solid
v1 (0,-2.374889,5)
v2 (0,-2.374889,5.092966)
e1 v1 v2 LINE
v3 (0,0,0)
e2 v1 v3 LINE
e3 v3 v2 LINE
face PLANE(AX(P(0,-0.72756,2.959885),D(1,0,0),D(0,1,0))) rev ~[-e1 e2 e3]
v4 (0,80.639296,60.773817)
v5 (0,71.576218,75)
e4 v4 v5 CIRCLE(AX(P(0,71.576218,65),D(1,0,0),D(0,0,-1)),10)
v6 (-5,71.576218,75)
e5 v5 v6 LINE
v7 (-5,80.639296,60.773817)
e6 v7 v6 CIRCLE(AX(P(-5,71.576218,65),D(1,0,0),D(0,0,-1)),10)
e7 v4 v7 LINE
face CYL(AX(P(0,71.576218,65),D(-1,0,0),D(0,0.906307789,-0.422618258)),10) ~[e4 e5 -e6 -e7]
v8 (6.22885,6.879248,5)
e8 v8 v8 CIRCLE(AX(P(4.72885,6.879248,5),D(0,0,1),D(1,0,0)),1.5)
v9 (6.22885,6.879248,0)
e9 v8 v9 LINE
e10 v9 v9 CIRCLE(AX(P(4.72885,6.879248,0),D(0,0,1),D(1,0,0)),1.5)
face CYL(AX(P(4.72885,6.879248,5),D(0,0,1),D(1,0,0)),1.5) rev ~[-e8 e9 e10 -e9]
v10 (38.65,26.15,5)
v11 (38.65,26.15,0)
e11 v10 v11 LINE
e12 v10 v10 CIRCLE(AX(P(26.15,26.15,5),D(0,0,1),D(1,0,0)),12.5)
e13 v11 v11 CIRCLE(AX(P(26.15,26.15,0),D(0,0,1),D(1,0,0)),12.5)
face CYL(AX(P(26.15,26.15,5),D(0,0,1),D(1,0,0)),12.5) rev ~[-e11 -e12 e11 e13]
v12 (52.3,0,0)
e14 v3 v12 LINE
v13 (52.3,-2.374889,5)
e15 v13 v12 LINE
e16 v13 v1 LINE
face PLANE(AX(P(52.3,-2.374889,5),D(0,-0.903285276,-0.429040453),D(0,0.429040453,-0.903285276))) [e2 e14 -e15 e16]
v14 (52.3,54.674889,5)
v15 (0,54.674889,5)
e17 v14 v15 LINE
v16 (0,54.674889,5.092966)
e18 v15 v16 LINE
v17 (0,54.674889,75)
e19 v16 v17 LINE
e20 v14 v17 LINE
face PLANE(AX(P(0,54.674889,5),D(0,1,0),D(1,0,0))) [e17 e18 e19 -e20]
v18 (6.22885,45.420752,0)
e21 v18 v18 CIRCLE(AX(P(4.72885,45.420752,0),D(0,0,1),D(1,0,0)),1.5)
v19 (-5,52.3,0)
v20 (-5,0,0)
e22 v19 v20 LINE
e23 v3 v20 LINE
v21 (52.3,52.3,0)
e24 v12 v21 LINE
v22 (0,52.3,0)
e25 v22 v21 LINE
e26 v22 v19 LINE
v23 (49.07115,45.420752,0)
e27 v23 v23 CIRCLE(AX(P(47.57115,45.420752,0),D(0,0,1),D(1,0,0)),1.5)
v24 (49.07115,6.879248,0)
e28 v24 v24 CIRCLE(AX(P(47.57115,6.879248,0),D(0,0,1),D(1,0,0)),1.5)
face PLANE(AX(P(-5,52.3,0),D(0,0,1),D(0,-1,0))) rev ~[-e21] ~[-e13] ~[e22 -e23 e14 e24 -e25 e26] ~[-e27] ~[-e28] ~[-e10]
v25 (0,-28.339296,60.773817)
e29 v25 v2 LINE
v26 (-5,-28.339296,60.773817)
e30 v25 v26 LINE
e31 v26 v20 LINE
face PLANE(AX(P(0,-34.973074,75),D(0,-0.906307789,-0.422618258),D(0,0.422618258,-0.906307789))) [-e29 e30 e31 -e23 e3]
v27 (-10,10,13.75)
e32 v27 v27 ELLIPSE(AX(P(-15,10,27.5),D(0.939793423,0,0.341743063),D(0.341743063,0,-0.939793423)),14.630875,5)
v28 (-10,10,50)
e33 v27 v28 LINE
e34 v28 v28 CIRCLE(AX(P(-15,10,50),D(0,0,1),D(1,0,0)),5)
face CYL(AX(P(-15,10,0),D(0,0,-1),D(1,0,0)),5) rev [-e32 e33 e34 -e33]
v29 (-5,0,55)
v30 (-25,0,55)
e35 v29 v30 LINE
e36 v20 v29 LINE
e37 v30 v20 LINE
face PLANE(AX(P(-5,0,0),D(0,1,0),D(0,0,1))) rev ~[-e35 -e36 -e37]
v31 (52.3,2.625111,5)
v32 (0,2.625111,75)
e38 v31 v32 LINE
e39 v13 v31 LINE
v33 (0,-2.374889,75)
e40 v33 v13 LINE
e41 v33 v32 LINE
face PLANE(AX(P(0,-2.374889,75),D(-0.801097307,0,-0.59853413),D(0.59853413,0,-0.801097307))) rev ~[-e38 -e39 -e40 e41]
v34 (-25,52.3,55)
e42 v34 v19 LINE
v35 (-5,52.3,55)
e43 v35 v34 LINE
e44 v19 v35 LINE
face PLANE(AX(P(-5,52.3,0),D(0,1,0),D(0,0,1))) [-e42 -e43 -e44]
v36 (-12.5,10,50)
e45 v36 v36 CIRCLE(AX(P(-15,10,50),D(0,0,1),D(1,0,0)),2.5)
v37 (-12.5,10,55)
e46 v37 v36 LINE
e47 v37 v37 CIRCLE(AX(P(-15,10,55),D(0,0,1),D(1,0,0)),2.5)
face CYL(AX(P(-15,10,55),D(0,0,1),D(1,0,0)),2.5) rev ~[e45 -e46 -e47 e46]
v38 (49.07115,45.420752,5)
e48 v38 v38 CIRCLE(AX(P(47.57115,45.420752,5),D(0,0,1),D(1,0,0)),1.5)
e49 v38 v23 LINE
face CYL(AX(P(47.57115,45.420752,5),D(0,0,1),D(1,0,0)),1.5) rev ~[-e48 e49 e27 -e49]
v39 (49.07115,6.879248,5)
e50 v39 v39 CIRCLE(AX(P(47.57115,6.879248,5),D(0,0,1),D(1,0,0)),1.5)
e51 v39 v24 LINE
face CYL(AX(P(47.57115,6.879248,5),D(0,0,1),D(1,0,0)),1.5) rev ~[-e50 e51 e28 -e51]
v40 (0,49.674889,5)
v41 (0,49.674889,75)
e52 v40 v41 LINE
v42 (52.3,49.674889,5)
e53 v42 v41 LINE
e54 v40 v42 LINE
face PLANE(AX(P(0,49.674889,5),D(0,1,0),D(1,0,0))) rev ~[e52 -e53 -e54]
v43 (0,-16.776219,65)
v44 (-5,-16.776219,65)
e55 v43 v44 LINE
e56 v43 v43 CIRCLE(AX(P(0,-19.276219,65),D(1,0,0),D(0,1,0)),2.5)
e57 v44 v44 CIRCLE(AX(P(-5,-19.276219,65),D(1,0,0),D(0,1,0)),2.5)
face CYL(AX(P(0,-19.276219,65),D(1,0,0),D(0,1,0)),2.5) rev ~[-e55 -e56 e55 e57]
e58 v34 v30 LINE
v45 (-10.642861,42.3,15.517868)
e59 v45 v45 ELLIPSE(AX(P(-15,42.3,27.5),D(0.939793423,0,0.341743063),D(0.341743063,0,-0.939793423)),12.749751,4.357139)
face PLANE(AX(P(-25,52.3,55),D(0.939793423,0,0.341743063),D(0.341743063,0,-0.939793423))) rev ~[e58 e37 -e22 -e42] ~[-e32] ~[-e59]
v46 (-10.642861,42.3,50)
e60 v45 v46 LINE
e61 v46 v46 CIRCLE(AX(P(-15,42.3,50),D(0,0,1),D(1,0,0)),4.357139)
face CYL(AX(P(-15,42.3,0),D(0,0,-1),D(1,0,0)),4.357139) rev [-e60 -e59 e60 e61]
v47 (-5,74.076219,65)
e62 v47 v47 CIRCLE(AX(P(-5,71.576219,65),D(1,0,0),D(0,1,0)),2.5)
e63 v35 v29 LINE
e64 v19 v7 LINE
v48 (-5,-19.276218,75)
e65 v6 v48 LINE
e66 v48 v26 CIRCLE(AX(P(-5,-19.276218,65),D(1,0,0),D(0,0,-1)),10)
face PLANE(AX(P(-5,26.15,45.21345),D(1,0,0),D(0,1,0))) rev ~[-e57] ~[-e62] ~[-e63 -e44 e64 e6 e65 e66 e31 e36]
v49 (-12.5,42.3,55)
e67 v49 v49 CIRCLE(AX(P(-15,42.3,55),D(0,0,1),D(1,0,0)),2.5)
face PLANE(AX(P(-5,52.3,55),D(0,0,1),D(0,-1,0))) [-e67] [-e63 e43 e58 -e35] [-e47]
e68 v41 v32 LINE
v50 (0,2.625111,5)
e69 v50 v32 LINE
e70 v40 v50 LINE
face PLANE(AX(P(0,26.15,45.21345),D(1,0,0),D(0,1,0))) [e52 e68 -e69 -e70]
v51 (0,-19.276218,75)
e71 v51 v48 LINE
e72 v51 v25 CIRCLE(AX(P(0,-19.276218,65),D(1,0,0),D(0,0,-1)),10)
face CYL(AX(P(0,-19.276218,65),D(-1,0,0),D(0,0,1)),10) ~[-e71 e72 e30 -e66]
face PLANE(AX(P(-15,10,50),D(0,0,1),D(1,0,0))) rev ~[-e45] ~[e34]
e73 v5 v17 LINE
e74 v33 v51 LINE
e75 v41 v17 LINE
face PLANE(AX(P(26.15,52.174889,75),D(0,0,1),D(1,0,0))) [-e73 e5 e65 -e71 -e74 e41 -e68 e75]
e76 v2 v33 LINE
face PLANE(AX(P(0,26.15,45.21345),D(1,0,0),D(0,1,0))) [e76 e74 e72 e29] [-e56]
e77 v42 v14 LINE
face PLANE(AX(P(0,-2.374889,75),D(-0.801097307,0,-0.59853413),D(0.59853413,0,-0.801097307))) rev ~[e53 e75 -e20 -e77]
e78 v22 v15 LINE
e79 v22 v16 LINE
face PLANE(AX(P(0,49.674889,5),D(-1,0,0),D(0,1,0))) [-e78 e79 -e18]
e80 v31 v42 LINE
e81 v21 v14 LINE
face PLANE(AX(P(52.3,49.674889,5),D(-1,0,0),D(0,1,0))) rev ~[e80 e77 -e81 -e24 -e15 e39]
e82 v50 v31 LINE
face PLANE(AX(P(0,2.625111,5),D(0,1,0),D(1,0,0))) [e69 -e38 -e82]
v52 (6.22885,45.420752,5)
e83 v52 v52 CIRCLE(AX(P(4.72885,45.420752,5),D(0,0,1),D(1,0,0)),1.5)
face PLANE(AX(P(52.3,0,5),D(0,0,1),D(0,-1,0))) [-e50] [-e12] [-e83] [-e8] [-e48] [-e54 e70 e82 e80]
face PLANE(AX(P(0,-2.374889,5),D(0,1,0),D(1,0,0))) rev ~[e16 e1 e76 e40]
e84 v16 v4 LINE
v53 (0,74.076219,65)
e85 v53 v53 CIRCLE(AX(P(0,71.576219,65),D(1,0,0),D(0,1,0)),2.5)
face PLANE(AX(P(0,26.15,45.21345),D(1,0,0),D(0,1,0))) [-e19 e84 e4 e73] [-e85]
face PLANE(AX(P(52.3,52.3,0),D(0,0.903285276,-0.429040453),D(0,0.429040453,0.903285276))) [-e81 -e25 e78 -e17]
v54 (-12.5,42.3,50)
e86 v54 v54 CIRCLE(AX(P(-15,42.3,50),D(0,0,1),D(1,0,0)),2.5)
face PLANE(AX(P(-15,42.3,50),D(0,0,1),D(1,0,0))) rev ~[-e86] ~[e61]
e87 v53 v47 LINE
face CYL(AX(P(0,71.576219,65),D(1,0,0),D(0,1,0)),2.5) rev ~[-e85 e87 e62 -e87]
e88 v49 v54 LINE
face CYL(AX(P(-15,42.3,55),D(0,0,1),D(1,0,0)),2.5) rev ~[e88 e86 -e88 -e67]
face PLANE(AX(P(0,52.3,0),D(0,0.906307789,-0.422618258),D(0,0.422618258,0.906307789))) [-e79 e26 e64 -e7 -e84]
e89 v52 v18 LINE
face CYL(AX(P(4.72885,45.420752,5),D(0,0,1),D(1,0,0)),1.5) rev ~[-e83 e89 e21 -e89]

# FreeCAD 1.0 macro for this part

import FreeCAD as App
import Part
import Sketcher
from FreeCAD import Vector
Q = App.Units.Quantity


def edges_at(feature, points):
    """Names of the edges that pass closest to the given points."""
    edges = feature.Shape.Edges
    near = lambda p: min(range(len(edges)), key=lambda i: edges[i].distToShape(Part.Vertex(*p))[0])
    return sorted({f"Edge{near(p) + 1}" for p in points})


def add_polygon(sketch, points):
    """Adds a closed chain of lines whose ends are joined by coincident constraints."""
    first, n = sketch.GeometryCount, len(points)
    for a, b in zip(points, points[1:] + points[:1]):
        sketch.addGeometry(Part.LineSegment(App.Vector(*a, 0), App.Vector(*b, 0)), False)
    for i in range(n):
        sketch.addConstraint(Sketcher.Constraint("Coincident", first + i, 2, first + (i + 1) % n, 1))

doc = App.newDocument("Part")
body = doc.addObject("PartDesign::Body", "Body")

# Sketch on XY plane
sketch1 = body.newObject("Sketcher::SketchObject", "Sketch")
sketch1.AttachmentSupport = (doc.getObject("XY_Plane"), [""])
sketch1.MapMode = "FlatFace"
add_polygon(sketch1, [(0, 52), (0, 0), (52, 0), (52, 52)])  # lines 0-3
sketch1.addConstraint([
    Sketcher.Constraint("Vertical", 0),
    Sketcher.Constraint("Horizontal", 1),
    Sketcher.Constraint("Vertical", 2),
    Sketcher.Constraint("Horizontal", 3),
    Sketcher.Constraint("Coincident", 0, 2, -1, 1),
    Sketcher.Constraint("Equal", 3, 0),
    Sketcher.Constraint("DistanceX", 1, 1, 1, 2, Q("52.3 mm")),
])
pad1 = body.newObject("PartDesign::Pad", "Pad")
pad1.Profile = sketch1
pad1.Length = 5

# Sketch on YZ plane
sketch2 = body.newObject("Sketcher::SketchObject", "Sketch001")
sketch2.AttachmentSupport = (doc.getObject("YZ_Plane"), [""])
sketch2.MapMode = "FlatFace"
add_polygon(sketch2, [(0, 0), (52, 0), (87, 75), (-35, 75)])  # lines 0-3
sketch2.addConstraint([
    Sketcher.Constraint("Horizontal", 0),
    Sketcher.Constraint("Horizontal", 2),
    Sketcher.Constraint("Coincident", 3, 2, -1, 1),
    Sketcher.Constraint("Equal", 1, 3),
    Sketcher.Constraint("Angle", 1, Q("65 deg")),
    Sketcher.Constraint("DistanceX", 0, 1, 0, 2, Q("52.3 mm")),
    Sketcher.Constraint("DistanceY", -1, 1, 1, 2, Q("75 mm")),
])
pad2 = body.newObject("PartDesign::Pad", "Pad001")
pad2.Profile = sketch2
pad2.Length = 5
pad2.Reversed = True

# Sketch on YZ plane
sketch3 = body.newObject("Sketcher::SketchObject", "Sketch002")
sketch3.AttachmentSupport = (doc.getObject("YZ_Plane"), [""])
sketch3.MapMode = "FlatFace"
sketch3.AttachmentOffset = App.Placement(Vector(0, 0, -5), App.Rotation())
add_polygon(sketch3, [(52, 55), (52, 0), (0, 0), (0, 55)])  # lines 0-3
sketch3.addConstraint([
    Sketcher.Constraint("Vertical", 0),
    Sketcher.Constraint("Horizontal", 1),
    Sketcher.Constraint("Vertical", 2),
    Sketcher.Constraint("Horizontal", 3),
    Sketcher.Constraint("Coincident", 1, 2, -1, 1),
    Sketcher.Constraint("DistanceY", 0, 2, 0, 1, Q("55 mm")),
    Sketcher.Constraint("DistanceX", 1, 2, 1, 1, Q("52.3 mm")),
])
pad3 = body.newObject("PartDesign::Pad", "Pad002")
pad3.Profile = sketch3
pad3.Length = 20
pad3.Reversed = True

# Sketch on XZ plane
sketch4 = body.newObject("Sketcher::SketchObject", "Sketch003")
sketch4.AttachmentSupport = (doc.getObject("XZ_Plane"), [""])
sketch4.MapMode = "FlatFace"
sketch4.AttachmentOffset = App.Placement(Vector(0, 0, -52.3), App.Rotation())
add_polygon(sketch4, [(-25, 55), (-5, 0), (-25, 0)])  # lines 0-2
sketch4.addConstraint([
    Sketcher.Constraint("Horizontal", 1),
    Sketcher.Constraint("Vertical", 2),
    Sketcher.Constraint("PointOnObject", 0, 2, -1),
    Sketcher.Constraint("DistanceX", 1, 2, 1, 1, Q("20 mm")),
    Sketcher.Constraint("DistanceY", 2, 1, 2, 2, Q("55 mm")),
    Sketcher.Constraint("DistanceX", 0, 2, -1, 1, Q("5 mm")),
])
pocket1 = body.newObject("PartDesign::Pocket", "Pocket")
pocket1.Profile = sketch4
pocket1.Type = "ThroughAll"
pocket1.Reversed = True

# Sketch on XY plane
sketch5 = body.newObject("Sketcher::SketchObject", "Sketch004")
sketch5.AttachmentSupport = (doc.getObject("XY_Plane"), [""])
sketch5.MapMode = "FlatFace"
sketch5.addGeometry([
    Part.Circle(Vector(-15, 10, 0), Vector(0, 0, 1), 5),
    Part.Circle(Vector(-15, 42.3, 0), Vector(0, 0, 1), 4.4),
], False)
sketch5.addConstraint([
    Sketcher.Constraint("Vertical", 0, 3, 1, 3),
    Sketcher.Constraint("Diameter", 0, Q("10 mm")),
    Sketcher.Constraint("DistanceX", 0, 3, -1, 1, Q("15 mm")),
    Sketcher.Constraint("DistanceY", -1, 1, 0, 3, Q("10 mm")),
    Sketcher.Constraint("DistanceY", -1, 1, 1, 3, Q("42.3 mm")),
    Sketcher.Constraint("Diameter", 1, Q("8.714278 mm")),
])
pocket2 = body.newObject("PartDesign::Pocket", "Pocket001")
pocket2.Profile = sketch5
pocket2.Length = 50
pocket2.Reversed = True

# Sketch on XY plane
sketch6 = body.newObject("Sketcher::SketchObject", "Sketch005")
sketch6.AttachmentSupport = (doc.getObject("XY_Plane"), [""])
sketch6.MapMode = "FlatFace"
sketch6.AttachmentOffset = App.Placement(Vector(0, 0, 55), App.Rotation())
sketch6.addGeometry([
    Part.Circle(Vector(-15, 42.3, 0), Vector(0, 0, 1), 2.5),
    Part.Circle(Vector(-15, 10, 0), Vector(0, 0, 1), 2.5),
], False)
sketch6.addConstraint([
    Sketcher.Constraint("Equal", 0, 1),
    Sketcher.Constraint("Vertical", 0, 3, 1, 3),
    Sketcher.Constraint("Diameter", 0, Q("5 mm")),
    Sketcher.Constraint("DistanceX", 0, 3, -1, 1, Q("15 mm")),
    Sketcher.Constraint("DistanceY", -1, 1, 1, 3, Q("10 mm")),
    Sketcher.Constraint("DistanceY", -1, 1, 0, 3, Q("42.3 mm")),
])
pocket3 = body.newObject("PartDesign::Pocket", "Pocket002")
pocket3.Profile = sketch6
pocket3.Type = "ThroughAll"

# Sketch on YZ plane
sketch7 = body.newObject("Sketcher::SketchObject", "Sketch006")
sketch7.AttachmentSupport = (doc.getObject("YZ_Plane"), [""])
sketch7.MapMode = "FlatFace"
sketch7.AttachmentOffset = App.Placement(Vector(0, 0, 52.3), App.Rotation())
add_polygon(sketch7, [(0, 0), (0, 5), (-2.4, 5)])  # lines 0-2
add_polygon(sketch7, [(54.7, 5), (52.3, 5), (52.3, 0)])  # lines 3-5
sketch7.addConstraint([
    Sketcher.Constraint("Vertical", 0),
    Sketcher.Constraint("Horizontal", 1),
    Sketcher.Constraint("Horizontal", 3),
    Sketcher.Constraint("Vertical", 4),
    Sketcher.Constraint("Coincident", 2, 2, -1, 1),
    Sketcher.Constraint("PointOnObject", 4, 2, -1),
    Sketcher.Constraint("Horizontal", 1, 2, 3, 2),
    Sketcher.Constraint("Equal", 1, 3),
    Sketcher.Constraint("DistanceY", 0, 1, 0, 2, Q("5 mm")),
    Sketcher.Constraint("DistanceX", -1, 1, 3, 2, Q("52.3 mm")),
    Sketcher.Constraint("DistanceX", 1, 2, 1, 1, Q("2.374889 mm")),
])
pad4 = body.newObject("PartDesign::Pad", "Pad003")
pad4.Profile = sketch7
pad4.Length = 52.3
pad4.Reversed = True

# Sketch on XY plane
sketch8 = body.newObject("Sketcher::SketchObject", "Sketch007")
sketch8.AttachmentSupport = (doc.getObject("XY_Plane"), [""])
sketch8.MapMode = "FlatFace"
sketch8.AttachmentOffset = App.Placement(Vector(0, 0, 5), App.Rotation())
add_polygon(sketch8, [(0, 55), (0, 50), (52, 50), (52, 55)])  # lines 0-3
add_polygon(sketch8, [(0, 3), (0, -2), (52, -2), (52, 3)])  # lines 4-7
sketch8.addConstraint([
    Sketcher.Constraint("Vertical", 0),
    Sketcher.Constraint("Horizontal", 1),
    Sketcher.Constraint("Vertical", 2),
    Sketcher.Constraint("Horizontal", 3),
    Sketcher.Constraint("Vertical", 4),
    Sketcher.Constraint("Horizontal", 5),
    Sketcher.Constraint("Vertical", 6),
    Sketcher.Constraint("Horizontal", 7),
    Sketcher.Constraint("PointOnObject", 0, 2, -2),
    Sketcher.Constraint("PointOnObject", 4, 2, -2),
    Sketcher.Constraint("Vertical", 2, 2, 5, 2),
    Sketcher.Constraint("Equal", 2, 4),
    Sketcher.Constraint("DistanceY", 0, 2, 0, 1, Q("5 mm")),
    Sketcher.Constraint("DistanceX", 1, 1, 1, 2, Q("52.3 mm")),
    Sketcher.Constraint("DistanceY", -1, 1, 0, 2, Q("49.674889 mm")),
    Sketcher.Constraint("DistanceY", 4, 2, -1, 1, Q("2.374889 mm")),
])
pad5 = body.newObject("PartDesign::Pad", "Pad004")
pad5.Profile = sketch8
pad5.Length = 70

# Sketch on XZ plane
sketch9 = body.newObject("Sketcher::SketchObject", "Sketch008")
sketch9.AttachmentSupport = (doc.getObject("XZ_Plane"), [""])
sketch9.MapMode = "FlatFace"
sketch9.AttachmentOffset = App.Placement(Vector(0, 0, 2.374889), App.Rotation())
add_polygon(sketch9, [(52, 75), (0, 75), (52, 5)])  # lines 0-2
sketch9.addConstraint([
    Sketcher.Constraint("Horizontal", 0),
    Sketcher.Constraint("Vertical", 2),
    Sketcher.Constraint("PointOnObject", 0, 2, -2),
    Sketcher.Constraint("DistanceY", 2, 1, 2, 2, Q("70 mm")),
    Sketcher.Constraint("DistanceX", 0, 2, 0, 1, Q("52.3 mm")),
    Sketcher.Constraint("DistanceY", -1, 1, 0, 2, Q("75 mm")),
])
pocket4 = body.newObject("PartDesign::Pocket", "Pocket003")
pocket4.Profile = sketch9
pocket4.Type = "ThroughAll"
doc.recompute()

fillet = body.newObject("PartDesign::Fillet", "Fillet")
fillet.Base = (pocket4, edges_at(pocket4, [(-2.5, -34.973, 75), (-2.5, 87.273, 75)]))
fillet.Radius = 10

# Sketch on XY plane
sketch10 = body.newObject("Sketcher::SketchObject", "Sketch009")
sketch10.AttachmentSupport = (doc.getObject("XY_Plane"), [""])
sketch10.MapMode = "FlatFace"
sketch10.AttachmentOffset = App.Placement(Vector(0, 0, 5), App.Rotation())
sketch10.addGeometry([
    Part.Circle(Vector(26.1, 26.1, 0), Vector(0, 0, 1), 12.5),  # 0
    Part.Circle(Vector(4.7, 6.9, 0), Vector(0, 0, 1), 1.5),  # 1
    Part.Circle(Vector(4.7, 45.4, 0), Vector(0, 0, 1), 1.5),  # 2
    Part.Circle(Vector(47.6, 45.4, 0), Vector(0, 0, 1), 1.5),  # 3
    Part.Circle(Vector(47.6, 6.9, 0), Vector(0, 0, 1), 1.5),  # 4
], False)
sketch10.addConstraint([
    Sketcher.Constraint("Equal", 1, 2),
    Sketcher.Constraint("Equal", 2, 3),
    Sketcher.Constraint("Equal", 3, 4),
    Sketcher.Constraint("Horizontal", 2, 3, 3, 3),
    Sketcher.Constraint("Horizontal", 1, 3, 4, 3),
    Sketcher.Constraint("Vertical", 1, 3, 2, 3),
    Sketcher.Constraint("Vertical", 3, 3, 4, 3),
    Sketcher.Constraint("Diameter", 0, Q("25 mm")),
    Sketcher.Constraint("Diameter", 1, Q("3 mm")),
    Sketcher.Constraint("DistanceX", -1, 1, 0, 3, Q("26.15 mm")),
    Sketcher.Constraint("DistanceY", -1, 1, 0, 3, Q("26.15 mm")),
    Sketcher.Constraint("DistanceX", 2, 3, 3, 3, Q("42.8423 mm")),
    Sketcher.Constraint("DistanceX", -1, 1, 1, 3, Q("4.72885 mm")),
    Sketcher.Constraint("DistanceY", 1, 3, 0, 3, Q("19.270752 mm")),
    Sketcher.Constraint("DistanceY", -1, 1, 2, 3, Q("45.420752 mm")),
])
pocket5 = body.newObject("PartDesign::Pocket", "Pocket004")
pocket5.Profile = sketch10
pocket5.Type = "ThroughAll"

# Sketch on YZ plane
sketch11 = body.newObject("Sketcher::SketchObject", "Sketch010")
sketch11.AttachmentSupport = (doc.getObject("YZ_Plane"), [""])
sketch11.MapMode = "FlatFace"
sketch11.addGeometry([
    Part.Circle(Vector(-19.3, 65, 0), Vector(0, 0, 1), 2.5),
    Part.Circle(Vector(71.6, 65, 0), Vector(0, 0, 1), 2.5),
], False)
sketch11.addConstraint([
    Sketcher.Constraint("Equal", 0, 1),
    Sketcher.Constraint("Horizontal", 0, 3, 1, 3),
    Sketcher.Constraint("Diameter", 0, Q("5 mm")),
    Sketcher.Constraint("DistanceY", -1, 1, 0, 3, Q("65 mm")),
    Sketcher.Constraint("DistanceX", 0, 3, -1, 1, Q("19.276219 mm")),
    Sketcher.Constraint("DistanceX", -1, 1, 1, 3, Q("71.576219 mm")),
])
pocket6 = body.newObject("PartDesign::Pocket", "Pocket005")
pocket6.Profile = sketch11
pocket6.Type = "ThroughAll"

doc.recompute()
